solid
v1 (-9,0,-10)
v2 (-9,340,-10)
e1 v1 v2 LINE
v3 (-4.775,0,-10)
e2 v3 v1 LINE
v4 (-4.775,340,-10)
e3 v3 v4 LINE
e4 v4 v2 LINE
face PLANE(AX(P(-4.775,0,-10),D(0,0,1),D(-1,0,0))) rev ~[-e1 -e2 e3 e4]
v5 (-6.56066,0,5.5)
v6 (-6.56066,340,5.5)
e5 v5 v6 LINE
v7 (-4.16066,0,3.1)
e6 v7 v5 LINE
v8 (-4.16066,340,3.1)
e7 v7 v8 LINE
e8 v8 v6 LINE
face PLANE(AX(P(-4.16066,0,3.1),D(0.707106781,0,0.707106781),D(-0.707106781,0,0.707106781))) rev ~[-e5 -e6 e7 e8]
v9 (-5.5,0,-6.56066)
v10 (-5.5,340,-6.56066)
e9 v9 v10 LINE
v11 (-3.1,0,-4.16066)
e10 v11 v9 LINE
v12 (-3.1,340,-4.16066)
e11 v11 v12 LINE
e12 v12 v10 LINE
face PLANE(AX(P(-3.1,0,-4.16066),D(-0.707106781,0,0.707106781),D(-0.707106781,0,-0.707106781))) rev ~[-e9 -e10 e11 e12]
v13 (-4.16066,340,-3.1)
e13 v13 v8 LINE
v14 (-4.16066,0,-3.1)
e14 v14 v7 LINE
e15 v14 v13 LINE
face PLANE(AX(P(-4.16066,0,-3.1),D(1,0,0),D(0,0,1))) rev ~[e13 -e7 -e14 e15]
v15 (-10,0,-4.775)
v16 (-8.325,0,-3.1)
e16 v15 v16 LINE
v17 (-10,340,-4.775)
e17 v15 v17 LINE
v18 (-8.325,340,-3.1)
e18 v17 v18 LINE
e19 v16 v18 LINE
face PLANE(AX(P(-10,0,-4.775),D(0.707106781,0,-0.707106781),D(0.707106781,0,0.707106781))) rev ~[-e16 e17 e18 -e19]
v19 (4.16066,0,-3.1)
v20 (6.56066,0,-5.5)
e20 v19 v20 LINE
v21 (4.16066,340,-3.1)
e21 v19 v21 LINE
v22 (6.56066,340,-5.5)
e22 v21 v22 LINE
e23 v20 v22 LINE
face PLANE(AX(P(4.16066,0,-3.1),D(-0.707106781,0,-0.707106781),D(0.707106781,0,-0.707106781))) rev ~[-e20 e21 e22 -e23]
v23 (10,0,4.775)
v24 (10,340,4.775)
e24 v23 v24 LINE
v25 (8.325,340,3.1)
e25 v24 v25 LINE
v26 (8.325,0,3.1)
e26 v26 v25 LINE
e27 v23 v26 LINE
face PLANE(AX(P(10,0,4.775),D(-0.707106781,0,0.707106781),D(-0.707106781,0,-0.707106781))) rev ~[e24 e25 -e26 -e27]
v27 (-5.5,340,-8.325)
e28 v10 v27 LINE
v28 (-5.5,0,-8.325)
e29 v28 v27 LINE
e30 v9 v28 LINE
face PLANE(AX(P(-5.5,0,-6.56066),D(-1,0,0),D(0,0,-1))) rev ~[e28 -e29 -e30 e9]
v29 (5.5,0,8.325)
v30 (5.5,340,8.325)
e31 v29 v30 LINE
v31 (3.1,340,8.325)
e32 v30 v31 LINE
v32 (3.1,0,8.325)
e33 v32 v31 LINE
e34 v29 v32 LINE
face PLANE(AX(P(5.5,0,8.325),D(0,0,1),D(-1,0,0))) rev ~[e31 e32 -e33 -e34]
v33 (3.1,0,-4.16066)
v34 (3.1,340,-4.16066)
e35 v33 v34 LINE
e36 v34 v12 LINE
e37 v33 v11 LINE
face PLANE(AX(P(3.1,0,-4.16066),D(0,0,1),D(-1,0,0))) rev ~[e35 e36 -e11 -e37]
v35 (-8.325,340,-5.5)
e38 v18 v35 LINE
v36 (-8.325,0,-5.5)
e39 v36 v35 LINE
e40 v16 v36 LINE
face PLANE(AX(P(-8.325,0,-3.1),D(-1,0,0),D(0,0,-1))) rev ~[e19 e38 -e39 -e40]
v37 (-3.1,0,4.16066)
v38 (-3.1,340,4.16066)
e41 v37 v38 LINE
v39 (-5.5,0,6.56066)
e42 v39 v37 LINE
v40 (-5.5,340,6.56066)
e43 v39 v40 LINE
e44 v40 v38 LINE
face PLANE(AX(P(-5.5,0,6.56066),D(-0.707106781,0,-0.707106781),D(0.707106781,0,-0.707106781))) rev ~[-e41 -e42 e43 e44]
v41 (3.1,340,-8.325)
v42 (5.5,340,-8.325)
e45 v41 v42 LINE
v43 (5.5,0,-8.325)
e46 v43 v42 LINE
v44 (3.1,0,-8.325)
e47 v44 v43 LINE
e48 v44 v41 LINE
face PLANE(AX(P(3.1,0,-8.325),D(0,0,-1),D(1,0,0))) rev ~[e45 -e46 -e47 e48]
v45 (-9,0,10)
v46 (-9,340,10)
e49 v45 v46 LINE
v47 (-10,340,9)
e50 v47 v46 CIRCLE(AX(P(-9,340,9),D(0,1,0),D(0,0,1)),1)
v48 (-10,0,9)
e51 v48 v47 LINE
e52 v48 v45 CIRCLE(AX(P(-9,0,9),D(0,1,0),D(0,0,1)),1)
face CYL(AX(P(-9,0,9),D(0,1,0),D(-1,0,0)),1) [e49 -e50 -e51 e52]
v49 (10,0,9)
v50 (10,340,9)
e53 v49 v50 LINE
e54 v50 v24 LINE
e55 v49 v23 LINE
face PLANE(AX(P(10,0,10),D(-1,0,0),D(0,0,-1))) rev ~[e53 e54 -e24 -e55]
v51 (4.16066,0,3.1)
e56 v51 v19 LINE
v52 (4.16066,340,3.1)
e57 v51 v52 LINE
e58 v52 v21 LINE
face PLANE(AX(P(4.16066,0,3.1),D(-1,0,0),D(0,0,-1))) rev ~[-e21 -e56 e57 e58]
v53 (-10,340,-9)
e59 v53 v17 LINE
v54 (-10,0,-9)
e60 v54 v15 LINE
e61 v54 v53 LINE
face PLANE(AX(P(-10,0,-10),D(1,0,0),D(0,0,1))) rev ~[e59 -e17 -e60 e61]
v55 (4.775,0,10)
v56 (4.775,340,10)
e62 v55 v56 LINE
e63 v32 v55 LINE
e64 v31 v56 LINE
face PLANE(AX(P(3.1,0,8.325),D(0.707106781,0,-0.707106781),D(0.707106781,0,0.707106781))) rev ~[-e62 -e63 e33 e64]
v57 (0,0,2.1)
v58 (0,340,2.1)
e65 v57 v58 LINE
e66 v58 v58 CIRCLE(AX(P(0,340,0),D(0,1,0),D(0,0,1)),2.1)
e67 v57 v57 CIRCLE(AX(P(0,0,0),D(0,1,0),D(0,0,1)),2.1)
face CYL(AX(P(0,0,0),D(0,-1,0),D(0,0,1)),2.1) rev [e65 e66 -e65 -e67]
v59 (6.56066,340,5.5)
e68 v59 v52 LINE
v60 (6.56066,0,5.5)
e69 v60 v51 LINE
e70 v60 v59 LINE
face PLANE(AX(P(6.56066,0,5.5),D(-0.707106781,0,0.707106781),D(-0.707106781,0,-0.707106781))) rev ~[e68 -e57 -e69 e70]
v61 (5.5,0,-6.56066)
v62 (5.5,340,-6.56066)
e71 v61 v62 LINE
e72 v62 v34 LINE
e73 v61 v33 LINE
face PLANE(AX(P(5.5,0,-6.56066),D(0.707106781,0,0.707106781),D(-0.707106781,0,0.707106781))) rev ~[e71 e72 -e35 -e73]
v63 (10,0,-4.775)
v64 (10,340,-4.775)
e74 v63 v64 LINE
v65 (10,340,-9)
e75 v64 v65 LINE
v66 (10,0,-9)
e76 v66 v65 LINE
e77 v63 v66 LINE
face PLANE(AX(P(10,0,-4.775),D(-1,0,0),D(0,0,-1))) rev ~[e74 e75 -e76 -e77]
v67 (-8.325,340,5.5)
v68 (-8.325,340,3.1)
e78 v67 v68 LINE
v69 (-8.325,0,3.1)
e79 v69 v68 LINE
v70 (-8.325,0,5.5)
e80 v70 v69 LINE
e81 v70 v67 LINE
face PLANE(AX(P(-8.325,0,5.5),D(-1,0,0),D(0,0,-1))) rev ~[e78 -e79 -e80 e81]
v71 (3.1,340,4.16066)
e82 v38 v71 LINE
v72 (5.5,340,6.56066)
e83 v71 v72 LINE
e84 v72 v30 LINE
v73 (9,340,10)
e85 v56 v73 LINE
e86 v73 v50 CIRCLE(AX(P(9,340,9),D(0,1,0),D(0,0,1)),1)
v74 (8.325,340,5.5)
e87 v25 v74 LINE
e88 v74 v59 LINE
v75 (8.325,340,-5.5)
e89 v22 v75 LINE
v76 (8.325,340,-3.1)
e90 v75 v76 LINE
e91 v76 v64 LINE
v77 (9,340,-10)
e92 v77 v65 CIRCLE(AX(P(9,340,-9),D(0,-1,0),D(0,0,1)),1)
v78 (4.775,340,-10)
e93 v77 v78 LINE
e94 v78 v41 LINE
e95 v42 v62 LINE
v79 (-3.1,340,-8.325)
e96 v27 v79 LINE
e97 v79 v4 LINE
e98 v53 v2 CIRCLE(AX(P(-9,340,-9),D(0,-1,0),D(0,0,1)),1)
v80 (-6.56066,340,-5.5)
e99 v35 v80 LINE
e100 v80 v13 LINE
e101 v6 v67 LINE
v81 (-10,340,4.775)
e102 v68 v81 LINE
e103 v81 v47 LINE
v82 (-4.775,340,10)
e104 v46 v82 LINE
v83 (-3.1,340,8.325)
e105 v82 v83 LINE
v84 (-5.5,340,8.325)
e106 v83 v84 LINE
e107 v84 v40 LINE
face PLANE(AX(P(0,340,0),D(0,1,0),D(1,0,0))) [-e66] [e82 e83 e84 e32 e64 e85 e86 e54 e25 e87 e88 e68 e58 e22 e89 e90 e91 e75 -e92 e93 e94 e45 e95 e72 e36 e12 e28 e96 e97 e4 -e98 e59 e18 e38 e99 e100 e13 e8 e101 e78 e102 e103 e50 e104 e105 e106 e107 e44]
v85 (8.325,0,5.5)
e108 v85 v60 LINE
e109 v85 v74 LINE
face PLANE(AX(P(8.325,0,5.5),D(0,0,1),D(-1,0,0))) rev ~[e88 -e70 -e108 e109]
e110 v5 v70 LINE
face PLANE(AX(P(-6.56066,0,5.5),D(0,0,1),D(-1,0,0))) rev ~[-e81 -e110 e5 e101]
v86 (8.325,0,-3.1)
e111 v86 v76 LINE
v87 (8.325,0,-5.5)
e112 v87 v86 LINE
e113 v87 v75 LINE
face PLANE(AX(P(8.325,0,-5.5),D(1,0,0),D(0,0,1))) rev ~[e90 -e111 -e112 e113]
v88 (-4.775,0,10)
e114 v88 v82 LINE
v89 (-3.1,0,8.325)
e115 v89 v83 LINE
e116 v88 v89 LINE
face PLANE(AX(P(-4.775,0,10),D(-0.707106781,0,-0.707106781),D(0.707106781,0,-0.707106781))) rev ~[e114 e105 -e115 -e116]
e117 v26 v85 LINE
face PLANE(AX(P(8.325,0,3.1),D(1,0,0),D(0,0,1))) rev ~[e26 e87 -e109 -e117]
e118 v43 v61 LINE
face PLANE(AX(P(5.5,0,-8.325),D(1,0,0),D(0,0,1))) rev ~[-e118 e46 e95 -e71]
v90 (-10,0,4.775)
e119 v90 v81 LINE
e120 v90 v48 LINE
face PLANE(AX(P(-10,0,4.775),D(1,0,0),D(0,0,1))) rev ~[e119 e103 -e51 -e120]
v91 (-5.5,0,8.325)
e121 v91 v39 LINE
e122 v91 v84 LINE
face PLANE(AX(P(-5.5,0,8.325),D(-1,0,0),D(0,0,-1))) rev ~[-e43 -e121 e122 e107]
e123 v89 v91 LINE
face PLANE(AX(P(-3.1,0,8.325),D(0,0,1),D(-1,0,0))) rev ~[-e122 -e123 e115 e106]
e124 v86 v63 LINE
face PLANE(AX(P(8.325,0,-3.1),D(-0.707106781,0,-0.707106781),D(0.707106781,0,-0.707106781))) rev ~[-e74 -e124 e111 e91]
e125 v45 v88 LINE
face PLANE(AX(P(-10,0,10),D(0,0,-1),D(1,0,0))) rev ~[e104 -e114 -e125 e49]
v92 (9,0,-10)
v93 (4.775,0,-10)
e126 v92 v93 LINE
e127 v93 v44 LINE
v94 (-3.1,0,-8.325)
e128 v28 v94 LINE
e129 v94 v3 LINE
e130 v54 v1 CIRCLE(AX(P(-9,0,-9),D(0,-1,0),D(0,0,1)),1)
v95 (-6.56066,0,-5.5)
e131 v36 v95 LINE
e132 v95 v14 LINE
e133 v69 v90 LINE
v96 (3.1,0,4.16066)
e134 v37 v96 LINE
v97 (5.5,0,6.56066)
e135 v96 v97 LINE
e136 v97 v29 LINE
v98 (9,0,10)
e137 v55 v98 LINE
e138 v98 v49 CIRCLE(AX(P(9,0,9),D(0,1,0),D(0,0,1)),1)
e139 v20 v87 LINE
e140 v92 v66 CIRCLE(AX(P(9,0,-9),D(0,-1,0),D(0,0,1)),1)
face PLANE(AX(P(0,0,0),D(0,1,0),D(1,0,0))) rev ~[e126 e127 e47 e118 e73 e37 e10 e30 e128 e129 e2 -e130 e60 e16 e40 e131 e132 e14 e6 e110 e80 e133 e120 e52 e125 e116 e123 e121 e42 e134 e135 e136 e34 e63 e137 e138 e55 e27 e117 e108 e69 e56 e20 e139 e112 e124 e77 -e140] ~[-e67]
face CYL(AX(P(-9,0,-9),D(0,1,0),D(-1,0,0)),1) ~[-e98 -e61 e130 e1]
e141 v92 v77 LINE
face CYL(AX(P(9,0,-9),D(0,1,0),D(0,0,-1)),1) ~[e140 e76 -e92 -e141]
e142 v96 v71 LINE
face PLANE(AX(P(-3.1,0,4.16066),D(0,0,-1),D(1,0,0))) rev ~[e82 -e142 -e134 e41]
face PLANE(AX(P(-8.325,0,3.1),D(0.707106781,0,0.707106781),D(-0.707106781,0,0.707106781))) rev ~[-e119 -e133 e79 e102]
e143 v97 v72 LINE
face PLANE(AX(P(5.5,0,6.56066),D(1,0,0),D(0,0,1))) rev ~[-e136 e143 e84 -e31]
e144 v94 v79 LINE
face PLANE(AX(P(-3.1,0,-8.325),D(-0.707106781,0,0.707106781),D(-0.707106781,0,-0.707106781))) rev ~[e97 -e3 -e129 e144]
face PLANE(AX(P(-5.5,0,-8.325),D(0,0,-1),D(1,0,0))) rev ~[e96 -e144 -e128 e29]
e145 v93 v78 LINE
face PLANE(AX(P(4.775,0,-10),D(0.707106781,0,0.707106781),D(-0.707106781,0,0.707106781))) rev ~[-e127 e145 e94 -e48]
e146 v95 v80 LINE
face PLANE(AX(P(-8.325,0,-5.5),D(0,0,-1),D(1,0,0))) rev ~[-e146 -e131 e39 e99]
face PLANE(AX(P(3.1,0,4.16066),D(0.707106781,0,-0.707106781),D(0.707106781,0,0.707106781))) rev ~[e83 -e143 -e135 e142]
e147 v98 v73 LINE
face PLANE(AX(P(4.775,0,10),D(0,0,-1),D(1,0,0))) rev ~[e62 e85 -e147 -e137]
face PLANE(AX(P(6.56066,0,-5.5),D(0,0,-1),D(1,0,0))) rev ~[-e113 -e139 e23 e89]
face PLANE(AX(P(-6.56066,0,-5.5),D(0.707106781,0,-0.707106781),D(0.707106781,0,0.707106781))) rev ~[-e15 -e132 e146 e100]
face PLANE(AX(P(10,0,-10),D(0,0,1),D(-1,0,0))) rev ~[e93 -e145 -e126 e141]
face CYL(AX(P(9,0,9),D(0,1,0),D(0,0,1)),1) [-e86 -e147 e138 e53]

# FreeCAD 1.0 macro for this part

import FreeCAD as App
import Part
import Sketcher

V = App.Vector


def edges_at(feature, points):
    """Names of the edges that pass closest to the given points."""
    edges = feature.Shape.Edges
    near = lambda p: min(range(len(edges)), key=lambda i: edges[i].distToShape(Part.Vertex(*p))[0])
    return sorted({f"Edge{near(p) + 1}" for p in points})


def add_polygon(sketch, points):
    """Adds a closed chain of lines whose ends are joined by coincident constraints."""
    first, n = sketch.GeometryCount, len(points)
    for a, b in zip(points, points[1:] + points[:1]):
        sketch.addGeometry(Part.LineSegment(App.Vector(*a, 0), App.Vector(*b, 0)), False)
    for i in range(n):
        sketch.addConstraint(Sketcher.Constraint("Coincident", first + i, 2, first + (i + 1) % n, 1))

doc = App.newDocument("Part")
params = doc.addObject("Spreadsheet::Sheet", "Params")
for row, (alias, value) in enumerate([
    ("sketch1_diameter", "4.2 mm"),
    ("sketch1_width", "2.4 mm"),
    ("sketch1_width2", "6.2 mm"),
    ("pad1_length", "340 mm"),
    ("fillet_radius", "1 mm"),
], start=1):
    params.set(f"A{row}", alias)
    params.set(f"B{row}", "=" + value)
    params.setAlias(f"B{row}", alias)

body = doc.addObject("PartDesign::Body", "Body")

sketch1 = body.newObject("Sketcher::SketchObject", "Sketch")
sketch1.AttachmentSupport = (doc.getObject("XZ_Plane"), [""])
sketch1.MapMode = "FlatFace"
add_polygon(sketch1, [(-8.325, -3.1), (-8.325, -5.5), (-6.56066, -5.5), (-4.16066, -3.1), (-4.16066, 3.1), (-6.56066, 5.5), (-8.325, 5.5), (-8.325, 3.1), (-10, 4.775), (-10, 10), (-4.775, 10), (-3.1, 8.325), (-5.5, 8.325), (-5.5, 6.56066), (-3.1, 4.16066), (3.1, 4.16066), (5.5, 6.56066), (5.5, 8.325), (3.1, 8.325), (4.775, 10), (10, 10), (10, 4.775), (8.325, 3.1), (8.325, 5.5), (6.56066, 5.5), (4.16066, 3.1), (4.16066, -3.1), (6.56066, -5.5), (8.325, -5.5), (8.325, -3.1), (10, -4.775), (10, -10), (4.775, -10), (3.1, -8.325), (5.5, -8.325), (5.5, -6.56066), (3.1, -4.16066), (-3.1, -4.16066), (-5.5, -6.56066), (-5.5, -8.325), (-3.1, -8.325), (-4.775, -10), (-10, -10), (-10, -4.775)])
sketch1.addGeometry(Part.Circle(V(0, 0, 0), V(0, 0, 1), 2.1), False)
sketch1.addConstraint(Sketcher.Constraint("Vertical", 0))
sketch1.addConstraint(Sketcher.Constraint("Horizontal", 1))
sketch1.addConstraint(Sketcher.Constraint("Vertical", 3))
sketch1.addConstraint(Sketcher.Constraint("Horizontal", 5))
sketch1.addConstraint(Sketcher.Constraint("Vertical", 6))
sketch1.addConstraint(Sketcher.Constraint("Vertical", 8))
sketch1.addConstraint(Sketcher.Constraint("Horizontal", 9))
sketch1.addConstraint(Sketcher.Constraint("Horizontal", 11))
sketch1.addConstraint(Sketcher.Constraint("Vertical", 12))
sketch1.addConstraint(Sketcher.Constraint("Horizontal", 14))
sketch1.addConstraint(Sketcher.Constraint("Vertical", 16))
sketch1.addConstraint(Sketcher.Constraint("Horizontal", 17))
sketch1.addConstraint(Sketcher.Constraint("Horizontal", 19))
sketch1.addConstraint(Sketcher.Constraint("Vertical", 20))
sketch1.addConstraint(Sketcher.Constraint("Vertical", 22))
sketch1.addConstraint(Sketcher.Constraint("Horizontal", 23))
sketch1.addConstraint(Sketcher.Constraint("Vertical", 25))
sketch1.addConstraint(Sketcher.Constraint("Horizontal", 27))
sketch1.addConstraint(Sketcher.Constraint("Vertical", 28))
sketch1.addConstraint(Sketcher.Constraint("Vertical", 30))
sketch1.addConstraint(Sketcher.Constraint("Horizontal", 31))
sketch1.addConstraint(Sketcher.Constraint("Horizontal", 33))
sketch1.addConstraint(Sketcher.Constraint("Vertical", 34))
sketch1.addConstraint(Sketcher.Constraint("Horizontal", 36))
sketch1.addConstraint(Sketcher.Constraint("Vertical", 38))
sketch1.addConstraint(Sketcher.Constraint("Horizontal", 39))
sketch1.addConstraint(Sketcher.Constraint("Horizontal", 41))
sketch1.addConstraint(Sketcher.Constraint("Vertical", 42))
sketch1.addConstraint(Sketcher.Constraint("Coincident", 44, 3, -1, 1))
sketch1.addConstraint(Sketcher.Constraint("Symmetric", 0, 2, 22, 2, -1, 1))
sketch1.addConstraint(Sketcher.Constraint("Symmetric", 2, 2, 24, 2, -1, 1))
sketch1.addConstraint(Sketcher.Constraint("Symmetric", 4, 2, 26, 2, -1, 1))
sketch1.addConstraint(Sketcher.Constraint("Symmetric", 6, 2, 28, 2, -1, 1))
sketch1.addConstraint(Sketcher.Constraint("Symmetric", 7, 2, 29, 2, -1, 1))
sketch1.addConstraint(Sketcher.Constraint("Symmetric", 9, 2, 31, 2, -1, 1))
sketch1.addConstraint(Sketcher.Constraint("Symmetric", 10, 2, 32, 2, -1, 1))
sketch1.addConstraint(Sketcher.Constraint("Symmetric", 12, 2, 34, 2, -1, 1))
sketch1.addConstraint(Sketcher.Constraint("Symmetric", 13, 2, 35, 2, -1, 1))
sketch1.addConstraint(Sketcher.Constraint("Symmetric", 15, 2, 37, 2, -1, 1))
sketch1.addConstraint(Sketcher.Constraint("Symmetric", 17, 2, 39, 2, -1, 1))
sketch1.addConstraint(Sketcher.Constraint("Symmetric", 18, 2, 40, 2, -1, 1))
sketch1.addConstraint(Sketcher.Constraint("Symmetric", 20, 2, 42, 2, -1, 1))
sketch1.addConstraint(Sketcher.Constraint("Symmetric", 12, 2, 15, 2, -2))
sketch1.addConstraint(Sketcher.Constraint("Symmetric", 10, 2, 17, 2, -2))
sketch1.addConstraint(Sketcher.Constraint("Symmetric", 9, 2, 18, 2, -2))
sketch1.addConstraint(Sketcher.Constraint("Symmetric", 7, 2, 20, 2, -2))
sketch1.addConstraint(Sketcher.Constraint("Symmetric", 6, 2, 21, 2, -2))
sketch1.addConstraint(Sketcher.Constraint("Symmetric", 4, 2, 23, 2, -2))
sketch1.addConstraint(Sketcher.Constraint("Perpendicular", 2, 4))
sketch1.addConstraint(Sketcher.Constraint("Parallel", 4, 7))
sketch1.addConstraint(Sketcher.Constraint("Parallel", 7, 10))
sketch1.addConstraint(Sketcher.Constraint("Parallel", 10, 13))
sketch1.addConstraint(Sketcher.Constraint("Perpendicular", 13, 15))
sketch1.addConstraint(Sketcher.Constraint("Parallel", 15, 18))
sketch1.addConstraint(Sketcher.Constraint("Parallel", 21, 24))
sketch1.addConstraint(Sketcher.Constraint("Perpendicular", 24, 26))
sketch1.addConstraint(Sketcher.Constraint("Perpendicular", 35, 37))
sketch1.addConstraint(Sketcher.Constraint("Parallel", 40, 43))
sketch1.addConstraint(Sketcher.Constraint("Horizontal", 3, 2, 6, 2))
sketch1.addConstraint(Sketcher.Constraint("Vertical", 10, 2, 13, 2))
sketch1.addConstraint(Sketcher.Constraint("Equal", 39, 0))
sketch1.addConstraint(Sketcher.Constraint("Equal", 36, 3))
sketch1.addConstraint(Sketcher.Constraint("Equal", 41, 8))
sketch1.addConstraint(Sketcher.Constraint("Equal", 27, 12))
sketch1.addConstraint(Sketcher.Constraint("Equal", 7, 10))
sketch1.addConstraint(Sketcher.Constraint("Diameter", 44, 4.2))
sketch1.addConstraint(Sketcher.Constraint("DistanceX", 11, 2, 11, 1, 2.4))
sketch1.addConstraint(Sketcher.Constraint("DistanceX", 14, 1, 14, 2, 6.2))
sketch1.addConstraint(Sketcher.Constraint("DistanceX", 7, 2, -1, 1, 10.0))
sketch1.addConstraint(Sketcher.Constraint("DistanceX", 9, 1, 9, 2, 5.225))
sketch1.addConstraint(Sketcher.Constraint("DistanceX", 1, 1, 1, 2, 1.76434))
sketch1.setExpression("Constraints[109]", "Params.sketch1_diameter")
sketch1.setExpression("Constraints[110]", "Params.sketch1_width")
sketch1.setExpression("Constraints[111]", "Params.sketch1_width2")
pad1 = body.newObject("PartDesign::Pad", "Pad")
pad1.Profile = sketch1
pad1.setExpression("Length", "Params.pad1_length")
pad1.Reversed = True
doc.recompute()

fillet = body.newObject("PartDesign::Fillet", "Fillet")
fillet.Base = (pad1, edges_at(pad1, [
    (10, 170, -10),
    (10, 170, 10),
    (-10, 170, 10),
    (-10, 170, -10),
]))
fillet.setExpression("Radius", "Params.fillet_radius")

doc.recompute()
